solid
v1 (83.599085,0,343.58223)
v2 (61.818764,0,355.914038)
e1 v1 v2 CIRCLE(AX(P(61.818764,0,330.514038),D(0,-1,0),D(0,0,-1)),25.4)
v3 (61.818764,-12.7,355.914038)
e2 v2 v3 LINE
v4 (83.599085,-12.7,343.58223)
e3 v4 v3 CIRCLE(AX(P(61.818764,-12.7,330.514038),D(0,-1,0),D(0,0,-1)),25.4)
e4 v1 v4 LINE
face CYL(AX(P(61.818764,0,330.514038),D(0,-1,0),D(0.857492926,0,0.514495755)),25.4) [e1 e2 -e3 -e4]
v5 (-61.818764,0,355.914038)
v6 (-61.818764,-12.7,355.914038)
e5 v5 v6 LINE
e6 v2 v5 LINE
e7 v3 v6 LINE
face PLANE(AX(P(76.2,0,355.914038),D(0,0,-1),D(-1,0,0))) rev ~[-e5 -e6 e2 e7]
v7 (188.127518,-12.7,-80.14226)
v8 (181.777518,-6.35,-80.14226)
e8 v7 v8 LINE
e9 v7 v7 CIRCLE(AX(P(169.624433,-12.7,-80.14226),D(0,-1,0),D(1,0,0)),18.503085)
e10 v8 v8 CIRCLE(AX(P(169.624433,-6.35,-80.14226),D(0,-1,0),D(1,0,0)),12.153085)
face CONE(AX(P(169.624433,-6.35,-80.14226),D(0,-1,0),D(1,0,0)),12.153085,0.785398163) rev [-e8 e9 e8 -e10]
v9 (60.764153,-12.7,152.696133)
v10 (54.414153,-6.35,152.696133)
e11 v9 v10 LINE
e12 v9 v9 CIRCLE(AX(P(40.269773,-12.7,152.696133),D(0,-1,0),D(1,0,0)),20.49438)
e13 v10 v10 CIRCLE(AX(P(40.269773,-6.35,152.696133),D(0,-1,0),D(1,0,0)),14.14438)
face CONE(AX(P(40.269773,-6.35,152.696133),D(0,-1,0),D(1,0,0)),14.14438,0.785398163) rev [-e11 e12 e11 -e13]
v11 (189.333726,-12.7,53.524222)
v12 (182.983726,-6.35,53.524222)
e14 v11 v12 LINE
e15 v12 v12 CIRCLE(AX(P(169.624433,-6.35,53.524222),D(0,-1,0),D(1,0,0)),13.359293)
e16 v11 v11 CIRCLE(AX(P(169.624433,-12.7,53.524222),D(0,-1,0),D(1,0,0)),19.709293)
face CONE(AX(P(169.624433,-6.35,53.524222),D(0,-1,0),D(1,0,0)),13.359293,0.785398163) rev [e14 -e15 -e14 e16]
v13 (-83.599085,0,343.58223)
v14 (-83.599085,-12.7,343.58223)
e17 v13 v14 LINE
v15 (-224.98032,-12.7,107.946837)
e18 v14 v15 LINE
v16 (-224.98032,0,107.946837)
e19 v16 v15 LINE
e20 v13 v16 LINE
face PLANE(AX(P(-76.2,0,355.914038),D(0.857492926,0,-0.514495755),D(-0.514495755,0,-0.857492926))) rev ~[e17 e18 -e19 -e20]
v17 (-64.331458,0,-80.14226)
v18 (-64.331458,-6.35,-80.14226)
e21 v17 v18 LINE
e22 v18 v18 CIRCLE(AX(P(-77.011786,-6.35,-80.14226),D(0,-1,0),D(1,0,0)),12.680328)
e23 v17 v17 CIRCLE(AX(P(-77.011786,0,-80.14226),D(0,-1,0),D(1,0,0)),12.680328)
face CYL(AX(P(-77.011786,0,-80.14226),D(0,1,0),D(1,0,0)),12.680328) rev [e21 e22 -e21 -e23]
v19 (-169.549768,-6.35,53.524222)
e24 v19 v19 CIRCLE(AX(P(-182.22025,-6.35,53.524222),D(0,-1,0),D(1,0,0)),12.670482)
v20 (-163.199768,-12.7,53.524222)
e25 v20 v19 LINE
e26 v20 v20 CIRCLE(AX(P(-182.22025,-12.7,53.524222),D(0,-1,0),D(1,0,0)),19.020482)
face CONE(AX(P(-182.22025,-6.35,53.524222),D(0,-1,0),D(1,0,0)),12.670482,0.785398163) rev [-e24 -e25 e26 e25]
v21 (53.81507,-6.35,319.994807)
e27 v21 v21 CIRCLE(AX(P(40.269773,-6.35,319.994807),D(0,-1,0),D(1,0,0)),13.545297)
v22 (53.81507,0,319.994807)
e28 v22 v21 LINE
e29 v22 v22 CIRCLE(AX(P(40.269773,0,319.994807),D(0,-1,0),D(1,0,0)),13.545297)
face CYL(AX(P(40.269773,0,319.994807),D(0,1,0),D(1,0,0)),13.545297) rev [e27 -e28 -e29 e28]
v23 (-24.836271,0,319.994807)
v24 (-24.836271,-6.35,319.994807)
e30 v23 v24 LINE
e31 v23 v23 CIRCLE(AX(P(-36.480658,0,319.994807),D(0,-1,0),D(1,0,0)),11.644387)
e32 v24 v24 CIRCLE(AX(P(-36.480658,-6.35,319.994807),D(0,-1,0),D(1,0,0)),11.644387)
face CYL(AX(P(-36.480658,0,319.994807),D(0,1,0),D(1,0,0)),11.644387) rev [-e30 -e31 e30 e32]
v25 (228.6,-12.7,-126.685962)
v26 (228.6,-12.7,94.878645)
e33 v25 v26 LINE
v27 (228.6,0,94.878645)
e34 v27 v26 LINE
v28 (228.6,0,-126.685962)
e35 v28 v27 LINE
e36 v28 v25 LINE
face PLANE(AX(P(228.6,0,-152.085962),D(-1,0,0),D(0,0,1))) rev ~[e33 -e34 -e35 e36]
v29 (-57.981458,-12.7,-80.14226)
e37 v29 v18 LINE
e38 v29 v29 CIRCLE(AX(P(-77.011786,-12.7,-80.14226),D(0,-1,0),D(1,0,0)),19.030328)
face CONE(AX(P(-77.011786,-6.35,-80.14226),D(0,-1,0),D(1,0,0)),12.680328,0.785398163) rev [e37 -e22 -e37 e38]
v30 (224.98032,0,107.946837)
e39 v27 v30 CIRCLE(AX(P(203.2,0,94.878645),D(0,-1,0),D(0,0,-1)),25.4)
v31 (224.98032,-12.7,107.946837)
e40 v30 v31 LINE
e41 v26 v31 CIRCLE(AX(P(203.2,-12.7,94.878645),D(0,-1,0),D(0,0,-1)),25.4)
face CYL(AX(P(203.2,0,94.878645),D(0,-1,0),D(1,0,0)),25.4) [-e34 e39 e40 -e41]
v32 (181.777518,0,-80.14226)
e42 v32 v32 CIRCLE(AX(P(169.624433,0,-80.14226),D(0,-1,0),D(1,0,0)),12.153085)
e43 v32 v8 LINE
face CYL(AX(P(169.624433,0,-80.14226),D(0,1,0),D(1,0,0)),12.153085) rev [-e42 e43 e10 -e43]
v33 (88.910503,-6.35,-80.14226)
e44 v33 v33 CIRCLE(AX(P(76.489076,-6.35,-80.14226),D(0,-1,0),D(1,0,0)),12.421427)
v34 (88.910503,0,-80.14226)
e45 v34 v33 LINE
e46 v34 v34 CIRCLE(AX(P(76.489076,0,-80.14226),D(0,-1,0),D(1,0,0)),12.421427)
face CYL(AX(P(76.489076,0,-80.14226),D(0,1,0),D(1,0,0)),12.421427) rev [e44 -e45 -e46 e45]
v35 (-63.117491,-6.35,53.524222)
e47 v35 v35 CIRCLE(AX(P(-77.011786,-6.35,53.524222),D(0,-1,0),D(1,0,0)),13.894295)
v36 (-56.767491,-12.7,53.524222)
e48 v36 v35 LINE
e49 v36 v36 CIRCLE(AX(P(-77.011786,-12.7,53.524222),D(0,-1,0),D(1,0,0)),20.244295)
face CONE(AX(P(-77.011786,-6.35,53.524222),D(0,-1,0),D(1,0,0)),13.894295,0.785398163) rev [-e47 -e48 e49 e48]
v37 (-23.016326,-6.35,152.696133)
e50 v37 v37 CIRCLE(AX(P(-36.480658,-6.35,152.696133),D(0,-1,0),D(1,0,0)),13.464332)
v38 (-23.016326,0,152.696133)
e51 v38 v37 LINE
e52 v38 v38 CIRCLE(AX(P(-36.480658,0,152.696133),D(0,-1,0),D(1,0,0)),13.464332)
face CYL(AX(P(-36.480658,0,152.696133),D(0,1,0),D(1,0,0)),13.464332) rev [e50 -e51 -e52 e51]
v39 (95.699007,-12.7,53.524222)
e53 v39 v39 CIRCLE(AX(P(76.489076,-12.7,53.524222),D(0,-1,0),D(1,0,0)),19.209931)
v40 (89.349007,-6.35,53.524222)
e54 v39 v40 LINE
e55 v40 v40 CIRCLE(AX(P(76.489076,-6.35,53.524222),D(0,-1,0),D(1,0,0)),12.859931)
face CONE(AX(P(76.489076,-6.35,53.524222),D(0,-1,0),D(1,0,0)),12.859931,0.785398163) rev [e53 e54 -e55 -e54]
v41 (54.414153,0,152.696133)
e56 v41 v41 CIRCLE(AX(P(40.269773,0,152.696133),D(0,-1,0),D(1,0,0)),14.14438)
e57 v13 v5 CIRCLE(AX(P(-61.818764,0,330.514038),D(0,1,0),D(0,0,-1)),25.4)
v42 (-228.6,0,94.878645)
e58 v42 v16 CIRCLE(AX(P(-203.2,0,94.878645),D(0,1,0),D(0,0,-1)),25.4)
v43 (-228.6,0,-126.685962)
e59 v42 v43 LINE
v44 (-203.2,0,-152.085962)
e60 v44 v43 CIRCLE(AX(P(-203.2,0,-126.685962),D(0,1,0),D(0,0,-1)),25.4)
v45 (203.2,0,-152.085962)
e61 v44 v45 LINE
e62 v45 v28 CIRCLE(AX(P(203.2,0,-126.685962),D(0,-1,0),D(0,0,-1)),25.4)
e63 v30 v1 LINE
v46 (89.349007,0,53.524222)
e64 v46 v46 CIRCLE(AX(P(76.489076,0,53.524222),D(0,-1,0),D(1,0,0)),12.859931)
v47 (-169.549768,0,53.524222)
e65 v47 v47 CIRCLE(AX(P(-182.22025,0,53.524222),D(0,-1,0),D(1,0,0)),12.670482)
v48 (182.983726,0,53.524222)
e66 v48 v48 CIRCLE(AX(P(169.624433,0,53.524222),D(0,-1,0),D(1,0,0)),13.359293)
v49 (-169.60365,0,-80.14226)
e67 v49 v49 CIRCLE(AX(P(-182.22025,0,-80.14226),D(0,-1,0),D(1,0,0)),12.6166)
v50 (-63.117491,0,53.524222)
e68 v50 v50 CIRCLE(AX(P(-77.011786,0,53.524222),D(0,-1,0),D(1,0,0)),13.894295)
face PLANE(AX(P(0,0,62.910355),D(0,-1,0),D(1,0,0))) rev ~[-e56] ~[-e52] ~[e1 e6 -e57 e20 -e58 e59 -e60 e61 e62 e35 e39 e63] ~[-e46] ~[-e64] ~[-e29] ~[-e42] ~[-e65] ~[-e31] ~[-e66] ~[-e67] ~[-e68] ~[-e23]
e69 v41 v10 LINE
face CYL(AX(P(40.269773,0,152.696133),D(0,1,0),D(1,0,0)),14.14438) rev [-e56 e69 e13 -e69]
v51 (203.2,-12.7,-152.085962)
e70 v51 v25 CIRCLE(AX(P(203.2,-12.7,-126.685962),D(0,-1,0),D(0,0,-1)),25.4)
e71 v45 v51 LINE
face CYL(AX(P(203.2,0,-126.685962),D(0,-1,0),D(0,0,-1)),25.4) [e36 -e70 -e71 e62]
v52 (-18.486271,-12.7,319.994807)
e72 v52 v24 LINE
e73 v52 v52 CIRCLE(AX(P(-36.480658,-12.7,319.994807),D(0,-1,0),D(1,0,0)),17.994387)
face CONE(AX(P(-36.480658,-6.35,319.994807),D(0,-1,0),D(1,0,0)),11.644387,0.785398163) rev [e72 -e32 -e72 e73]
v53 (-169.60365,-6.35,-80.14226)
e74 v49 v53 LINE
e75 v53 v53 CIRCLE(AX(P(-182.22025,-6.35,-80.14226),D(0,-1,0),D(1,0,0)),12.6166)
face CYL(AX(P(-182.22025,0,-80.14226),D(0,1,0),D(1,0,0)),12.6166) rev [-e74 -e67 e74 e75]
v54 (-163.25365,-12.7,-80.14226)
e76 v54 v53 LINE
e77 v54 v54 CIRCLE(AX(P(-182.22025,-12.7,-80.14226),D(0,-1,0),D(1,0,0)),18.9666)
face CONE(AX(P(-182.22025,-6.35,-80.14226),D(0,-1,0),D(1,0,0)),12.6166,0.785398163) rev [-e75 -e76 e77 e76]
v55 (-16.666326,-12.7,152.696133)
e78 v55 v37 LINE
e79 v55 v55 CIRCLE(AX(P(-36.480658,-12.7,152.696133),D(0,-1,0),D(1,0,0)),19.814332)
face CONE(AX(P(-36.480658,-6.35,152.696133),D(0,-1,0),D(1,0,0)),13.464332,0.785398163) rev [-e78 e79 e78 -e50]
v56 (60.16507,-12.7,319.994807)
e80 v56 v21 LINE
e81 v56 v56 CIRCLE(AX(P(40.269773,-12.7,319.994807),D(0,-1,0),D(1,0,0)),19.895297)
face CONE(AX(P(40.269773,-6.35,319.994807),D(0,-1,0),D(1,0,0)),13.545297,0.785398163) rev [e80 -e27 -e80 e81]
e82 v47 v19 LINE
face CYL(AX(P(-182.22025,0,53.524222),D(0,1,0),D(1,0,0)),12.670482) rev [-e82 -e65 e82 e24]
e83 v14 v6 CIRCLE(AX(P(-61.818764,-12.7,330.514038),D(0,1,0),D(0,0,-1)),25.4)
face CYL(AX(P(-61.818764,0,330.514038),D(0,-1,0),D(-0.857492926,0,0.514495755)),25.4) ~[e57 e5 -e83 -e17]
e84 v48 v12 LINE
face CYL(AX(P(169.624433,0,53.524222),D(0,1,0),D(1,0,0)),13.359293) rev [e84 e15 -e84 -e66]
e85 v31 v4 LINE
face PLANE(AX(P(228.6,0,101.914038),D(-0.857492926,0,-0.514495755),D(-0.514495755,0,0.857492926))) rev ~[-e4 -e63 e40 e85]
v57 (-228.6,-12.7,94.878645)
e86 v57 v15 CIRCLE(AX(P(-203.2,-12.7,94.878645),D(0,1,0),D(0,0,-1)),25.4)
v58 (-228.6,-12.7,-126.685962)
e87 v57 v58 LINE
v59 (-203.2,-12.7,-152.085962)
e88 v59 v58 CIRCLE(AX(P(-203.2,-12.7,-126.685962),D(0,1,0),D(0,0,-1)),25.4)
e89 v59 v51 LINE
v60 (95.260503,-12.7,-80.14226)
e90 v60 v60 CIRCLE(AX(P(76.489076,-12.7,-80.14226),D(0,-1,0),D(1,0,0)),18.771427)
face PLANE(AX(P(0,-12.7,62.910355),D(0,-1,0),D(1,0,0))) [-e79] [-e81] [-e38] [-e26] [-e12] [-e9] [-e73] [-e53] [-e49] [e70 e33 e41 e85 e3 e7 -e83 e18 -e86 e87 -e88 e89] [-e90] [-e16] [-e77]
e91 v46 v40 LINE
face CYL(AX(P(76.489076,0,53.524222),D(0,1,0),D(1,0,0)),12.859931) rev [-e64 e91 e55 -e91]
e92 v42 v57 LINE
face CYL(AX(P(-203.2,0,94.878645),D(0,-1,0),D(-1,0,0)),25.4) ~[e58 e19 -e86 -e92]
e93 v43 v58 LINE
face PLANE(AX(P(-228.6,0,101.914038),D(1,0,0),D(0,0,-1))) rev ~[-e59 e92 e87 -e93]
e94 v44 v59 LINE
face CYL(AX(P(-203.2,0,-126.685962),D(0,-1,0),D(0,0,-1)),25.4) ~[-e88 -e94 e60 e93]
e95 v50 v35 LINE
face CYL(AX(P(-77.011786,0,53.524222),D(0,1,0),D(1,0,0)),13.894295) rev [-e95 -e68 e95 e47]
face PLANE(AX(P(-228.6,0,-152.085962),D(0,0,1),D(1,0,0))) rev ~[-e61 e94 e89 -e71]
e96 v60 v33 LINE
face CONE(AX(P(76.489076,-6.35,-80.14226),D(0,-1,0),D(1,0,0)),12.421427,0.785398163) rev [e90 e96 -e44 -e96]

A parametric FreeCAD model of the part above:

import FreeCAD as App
import Part
import Sketcher
from FreeCAD import Vector
Q = App.Units.Quantity


def edges_at(feature, points):
    """Names of the edges that pass closest to the given points."""
    edges = feature.Shape.Edges
    near = lambda p: min(range(len(edges)), key=lambda i: edges[i].distToShape(Part.Vertex(*p))[0])
    return sorted({f"Edge{near(p) + 1}" for p in points})


def add_polygon(sketch, points):
    """Adds a closed chain of lines whose ends are joined by coincident constraints."""
    first, n = sketch.GeometryCount, len(points)
    for a, b in zip(points, points[1:] + points[:1]):
        sketch.addGeometry(Part.LineSegment(App.Vector(*a, 0), App.Vector(*b, 0)), False)
    for i in range(n):
        sketch.addConstraint(Sketcher.Constraint("Coincident", first + i, 2, first + (i + 1) % n, 1))

doc = App.newDocument("Part")
body = doc.addObject("PartDesign::Body", "Body")

sketch1 = body.newObject("Sketcher::SketchObject", "Sketch")
sketch1.AttachmentSupport = (doc.getObject("XZ_Plane"), [""])
sketch1.MapMode = "FlatFace"
add_polygon(sketch1, [(-229, -152), (229, -152), (229, 102), (76, 356), (-76, 356), (-229, 102)])
sketch1.addGeometry(Part.Circle(Vector(-182, -80, 0), Vector(0, 0, 1), 13), False)
sketch1.addGeometry(Part.Circle(Vector(-77, -80, 0), Vector(0, 0, 1), 13), False)
sketch1.addGeometry(Part.Circle(Vector(-182, 54, 0), Vector(0, 0, 1), 13), False)
sketch1.addGeometry(Part.Circle(Vector(-77, 54, 0), Vector(0, 0, 1), 14), False)
sketch1.addGeometry(Part.Circle(Vector(76, -80, 0), Vector(0, 0, 1), 12), False)
sketch1.addGeometry(Part.Circle(Vector(170, -80, 0), Vector(0, 0, 1), 12), False)
sketch1.addGeometry(Part.Circle(Vector(76, 54, 0), Vector(0, 0, 1), 13), False)
sketch1.addGeometry(Part.Circle(Vector(170, 54, 0), Vector(0, 0, 1), 13), False)
sketch1.addGeometry(Part.Circle(Vector(-36, 153, 0), Vector(0, 0, 1), 13), False)
sketch1.addGeometry(Part.Circle(Vector(-36, 320, 0), Vector(0, 0, 1), 12), False)
sketch1.addGeometry(Part.Circle(Vector(40, 153, 0), Vector(0, 0, 1), 14), False)
sketch1.addGeometry(Part.Circle(Vector(40, 320, 0), Vector(0, 0, 1), 14), False)
sketch1.addConstraint([
    Sketcher.Constraint("Horizontal", 0),
    Sketcher.Constraint("Vertical", 1),
    Sketcher.Constraint("Horizontal", 3),
    Sketcher.Constraint("Vertical", 5),
    Sketcher.Constraint("Symmetric", 1, 2, 4, 2, -2),
    Sketcher.Constraint("Horizontal", 6, 3, 7, 3),
    Sketcher.Constraint("Horizontal", 8, 3, 9, 3),
    Sketcher.Constraint("Horizontal", 7, 3, 10, 3),
    Sketcher.Constraint("Horizontal", 10, 3, 11, 3),
    Sketcher.Constraint("Horizontal", 9, 3, 12, 3),
    Sketcher.Constraint("Horizontal", 12, 3, 13, 3),
    Sketcher.Constraint("Horizontal", 14, 3, 16, 3),
    Sketcher.Constraint("Horizontal", 15, 3, 17, 3),
    Sketcher.Constraint("Vertical", 6, 3, 8, 3),
    Sketcher.Constraint("Vertical", 7, 3, 9, 3),
    Sketcher.Constraint("Vertical", 10, 3, 12, 3),
    Sketcher.Constraint("Vertical", 11, 3, 13, 3),
    Sketcher.Constraint("Vertical", 14, 3, 15, 3),
    Sketcher.Constraint("Vertical", 16, 3, 17, 3),
    Sketcher.Constraint("Equal", 2, 4),
    Sketcher.Constraint("DistanceX", 0, 1, 0, 2, Q("18 in")),
    Sketcher.Constraint("DistanceX", 3, 2, 3, 1, Q("6 in")),
    Sketcher.Constraint("DistanceY", 1, 1, 1, 2, Q("10 in")),
    Sketcher.Constraint("DistanceY", 1, 2, 2, 2, Q("10 in")),
    Sketcher.Constraint("Diameter", 6, Q("25.2332 mm")),
    Sketcher.Constraint("Diameter", 9, Q("27.78859 mm")),
    Sketcher.Constraint("Diameter", 11, Q("24.30617 mm")),
    Sketcher.Constraint("Diameter", 12, Q("25.719862 mm")),
    Sketcher.Constraint("Diameter", 16, Q("28.28876 mm")),
    Sketcher.Constraint("Diameter", 7, Q("25.360656 mm")),
    Sketcher.Constraint("Diameter", 8, Q("25.340964 mm")),
    Sketcher.Constraint("Diameter", 10, Q("24.842854 mm")),
    Sketcher.Constraint("Diameter", 13, Q("26.718586 mm")),
    Sketcher.Constraint("Diameter", 14, Q("26.928664 mm")),
    Sketcher.Constraint("Diameter", 15, Q("23.288774 mm")),
    Sketcher.Constraint("Diameter", 17, Q("27.090594 mm")),
    Sketcher.Constraint("DistanceY", 0, 2, 11, 3, Q("71.943702 mm")),
    Sketcher.Constraint("DistanceX", 6, 3, -1, 1, Q("182.22025 mm")),
    Sketcher.Constraint("DistanceY", 6, 3, -1, 1, Q("80.14226 mm")),
    Sketcher.Constraint("DistanceY", 6, 3, 8, 3, Q("133.666482 mm")),
    Sketcher.Constraint("DistanceX", 7, 3, 10, 3, Q("153.500862 mm")),
    Sketcher.Constraint("DistanceX", 7, 3, 11, 3, Q("246.636219 mm")),
    Sketcher.Constraint("DistanceX", 9, 3, 14, 3, Q("40.531128 mm")),
    Sketcher.Constraint("DistanceY", 9, 3, 14, 3, Q("99.171911 mm")),
    Sketcher.Constraint("DistanceX", 8, 3, 14, 3, Q("145.739592 mm")),
    Sketcher.Constraint("DistanceX", 14, 3, 16, 3, Q("76.750431 mm")),
    Sketcher.Constraint("DistanceY", 17, 3, 2, 2, Q("35.919231 mm")),
])
pad1 = body.newObject("PartDesign::Pad", "Pad")
pad1.Profile = sketch1
pad1.Length = Q("0.5 in")
doc.recompute()

fillet = body.newObject("PartDesign::Fillet", "Fillet")
fillet.Base = (pad1, edges_at(pad1, [
    (76.2, -6.35, 355.914),
    (-76.2, -6.35, 355.914),
    (228.6, -6.35, 101.914),
    (228.6, -6.35, -152.086),
    (-228.6, -6.35, -152.086),
    (-228.6, -6.35, 101.914),
]))
fillet.Radius = Q("1 in")
doc.recompute()

chamfer = body.newObject("PartDesign::Chamfer", "Chamfer")
chamfer.Base = (fillet, edges_at(fillet, [
    (26.724, -12.7, 319.995),
    (-48.125, -12.7, 319.995),
    (-49.945, -12.7, 152.696),
    (26.125, -12.7, 152.696),
    (-90.906, -12.7, 53.524),
    (-194.891, -12.7, 53.524),
    (63.629, -12.7, 53.524),
    (156.265, -12.7, 53.524),
    (157.471, -12.7, -80.142),
    (64.068, -12.7, -80.142),
    (-89.692, -12.7, -80.142),
    (-194.837, -12.7, -80.142),
]))
chamfer.Size = Q("0.25 in")

doc.recompute()
